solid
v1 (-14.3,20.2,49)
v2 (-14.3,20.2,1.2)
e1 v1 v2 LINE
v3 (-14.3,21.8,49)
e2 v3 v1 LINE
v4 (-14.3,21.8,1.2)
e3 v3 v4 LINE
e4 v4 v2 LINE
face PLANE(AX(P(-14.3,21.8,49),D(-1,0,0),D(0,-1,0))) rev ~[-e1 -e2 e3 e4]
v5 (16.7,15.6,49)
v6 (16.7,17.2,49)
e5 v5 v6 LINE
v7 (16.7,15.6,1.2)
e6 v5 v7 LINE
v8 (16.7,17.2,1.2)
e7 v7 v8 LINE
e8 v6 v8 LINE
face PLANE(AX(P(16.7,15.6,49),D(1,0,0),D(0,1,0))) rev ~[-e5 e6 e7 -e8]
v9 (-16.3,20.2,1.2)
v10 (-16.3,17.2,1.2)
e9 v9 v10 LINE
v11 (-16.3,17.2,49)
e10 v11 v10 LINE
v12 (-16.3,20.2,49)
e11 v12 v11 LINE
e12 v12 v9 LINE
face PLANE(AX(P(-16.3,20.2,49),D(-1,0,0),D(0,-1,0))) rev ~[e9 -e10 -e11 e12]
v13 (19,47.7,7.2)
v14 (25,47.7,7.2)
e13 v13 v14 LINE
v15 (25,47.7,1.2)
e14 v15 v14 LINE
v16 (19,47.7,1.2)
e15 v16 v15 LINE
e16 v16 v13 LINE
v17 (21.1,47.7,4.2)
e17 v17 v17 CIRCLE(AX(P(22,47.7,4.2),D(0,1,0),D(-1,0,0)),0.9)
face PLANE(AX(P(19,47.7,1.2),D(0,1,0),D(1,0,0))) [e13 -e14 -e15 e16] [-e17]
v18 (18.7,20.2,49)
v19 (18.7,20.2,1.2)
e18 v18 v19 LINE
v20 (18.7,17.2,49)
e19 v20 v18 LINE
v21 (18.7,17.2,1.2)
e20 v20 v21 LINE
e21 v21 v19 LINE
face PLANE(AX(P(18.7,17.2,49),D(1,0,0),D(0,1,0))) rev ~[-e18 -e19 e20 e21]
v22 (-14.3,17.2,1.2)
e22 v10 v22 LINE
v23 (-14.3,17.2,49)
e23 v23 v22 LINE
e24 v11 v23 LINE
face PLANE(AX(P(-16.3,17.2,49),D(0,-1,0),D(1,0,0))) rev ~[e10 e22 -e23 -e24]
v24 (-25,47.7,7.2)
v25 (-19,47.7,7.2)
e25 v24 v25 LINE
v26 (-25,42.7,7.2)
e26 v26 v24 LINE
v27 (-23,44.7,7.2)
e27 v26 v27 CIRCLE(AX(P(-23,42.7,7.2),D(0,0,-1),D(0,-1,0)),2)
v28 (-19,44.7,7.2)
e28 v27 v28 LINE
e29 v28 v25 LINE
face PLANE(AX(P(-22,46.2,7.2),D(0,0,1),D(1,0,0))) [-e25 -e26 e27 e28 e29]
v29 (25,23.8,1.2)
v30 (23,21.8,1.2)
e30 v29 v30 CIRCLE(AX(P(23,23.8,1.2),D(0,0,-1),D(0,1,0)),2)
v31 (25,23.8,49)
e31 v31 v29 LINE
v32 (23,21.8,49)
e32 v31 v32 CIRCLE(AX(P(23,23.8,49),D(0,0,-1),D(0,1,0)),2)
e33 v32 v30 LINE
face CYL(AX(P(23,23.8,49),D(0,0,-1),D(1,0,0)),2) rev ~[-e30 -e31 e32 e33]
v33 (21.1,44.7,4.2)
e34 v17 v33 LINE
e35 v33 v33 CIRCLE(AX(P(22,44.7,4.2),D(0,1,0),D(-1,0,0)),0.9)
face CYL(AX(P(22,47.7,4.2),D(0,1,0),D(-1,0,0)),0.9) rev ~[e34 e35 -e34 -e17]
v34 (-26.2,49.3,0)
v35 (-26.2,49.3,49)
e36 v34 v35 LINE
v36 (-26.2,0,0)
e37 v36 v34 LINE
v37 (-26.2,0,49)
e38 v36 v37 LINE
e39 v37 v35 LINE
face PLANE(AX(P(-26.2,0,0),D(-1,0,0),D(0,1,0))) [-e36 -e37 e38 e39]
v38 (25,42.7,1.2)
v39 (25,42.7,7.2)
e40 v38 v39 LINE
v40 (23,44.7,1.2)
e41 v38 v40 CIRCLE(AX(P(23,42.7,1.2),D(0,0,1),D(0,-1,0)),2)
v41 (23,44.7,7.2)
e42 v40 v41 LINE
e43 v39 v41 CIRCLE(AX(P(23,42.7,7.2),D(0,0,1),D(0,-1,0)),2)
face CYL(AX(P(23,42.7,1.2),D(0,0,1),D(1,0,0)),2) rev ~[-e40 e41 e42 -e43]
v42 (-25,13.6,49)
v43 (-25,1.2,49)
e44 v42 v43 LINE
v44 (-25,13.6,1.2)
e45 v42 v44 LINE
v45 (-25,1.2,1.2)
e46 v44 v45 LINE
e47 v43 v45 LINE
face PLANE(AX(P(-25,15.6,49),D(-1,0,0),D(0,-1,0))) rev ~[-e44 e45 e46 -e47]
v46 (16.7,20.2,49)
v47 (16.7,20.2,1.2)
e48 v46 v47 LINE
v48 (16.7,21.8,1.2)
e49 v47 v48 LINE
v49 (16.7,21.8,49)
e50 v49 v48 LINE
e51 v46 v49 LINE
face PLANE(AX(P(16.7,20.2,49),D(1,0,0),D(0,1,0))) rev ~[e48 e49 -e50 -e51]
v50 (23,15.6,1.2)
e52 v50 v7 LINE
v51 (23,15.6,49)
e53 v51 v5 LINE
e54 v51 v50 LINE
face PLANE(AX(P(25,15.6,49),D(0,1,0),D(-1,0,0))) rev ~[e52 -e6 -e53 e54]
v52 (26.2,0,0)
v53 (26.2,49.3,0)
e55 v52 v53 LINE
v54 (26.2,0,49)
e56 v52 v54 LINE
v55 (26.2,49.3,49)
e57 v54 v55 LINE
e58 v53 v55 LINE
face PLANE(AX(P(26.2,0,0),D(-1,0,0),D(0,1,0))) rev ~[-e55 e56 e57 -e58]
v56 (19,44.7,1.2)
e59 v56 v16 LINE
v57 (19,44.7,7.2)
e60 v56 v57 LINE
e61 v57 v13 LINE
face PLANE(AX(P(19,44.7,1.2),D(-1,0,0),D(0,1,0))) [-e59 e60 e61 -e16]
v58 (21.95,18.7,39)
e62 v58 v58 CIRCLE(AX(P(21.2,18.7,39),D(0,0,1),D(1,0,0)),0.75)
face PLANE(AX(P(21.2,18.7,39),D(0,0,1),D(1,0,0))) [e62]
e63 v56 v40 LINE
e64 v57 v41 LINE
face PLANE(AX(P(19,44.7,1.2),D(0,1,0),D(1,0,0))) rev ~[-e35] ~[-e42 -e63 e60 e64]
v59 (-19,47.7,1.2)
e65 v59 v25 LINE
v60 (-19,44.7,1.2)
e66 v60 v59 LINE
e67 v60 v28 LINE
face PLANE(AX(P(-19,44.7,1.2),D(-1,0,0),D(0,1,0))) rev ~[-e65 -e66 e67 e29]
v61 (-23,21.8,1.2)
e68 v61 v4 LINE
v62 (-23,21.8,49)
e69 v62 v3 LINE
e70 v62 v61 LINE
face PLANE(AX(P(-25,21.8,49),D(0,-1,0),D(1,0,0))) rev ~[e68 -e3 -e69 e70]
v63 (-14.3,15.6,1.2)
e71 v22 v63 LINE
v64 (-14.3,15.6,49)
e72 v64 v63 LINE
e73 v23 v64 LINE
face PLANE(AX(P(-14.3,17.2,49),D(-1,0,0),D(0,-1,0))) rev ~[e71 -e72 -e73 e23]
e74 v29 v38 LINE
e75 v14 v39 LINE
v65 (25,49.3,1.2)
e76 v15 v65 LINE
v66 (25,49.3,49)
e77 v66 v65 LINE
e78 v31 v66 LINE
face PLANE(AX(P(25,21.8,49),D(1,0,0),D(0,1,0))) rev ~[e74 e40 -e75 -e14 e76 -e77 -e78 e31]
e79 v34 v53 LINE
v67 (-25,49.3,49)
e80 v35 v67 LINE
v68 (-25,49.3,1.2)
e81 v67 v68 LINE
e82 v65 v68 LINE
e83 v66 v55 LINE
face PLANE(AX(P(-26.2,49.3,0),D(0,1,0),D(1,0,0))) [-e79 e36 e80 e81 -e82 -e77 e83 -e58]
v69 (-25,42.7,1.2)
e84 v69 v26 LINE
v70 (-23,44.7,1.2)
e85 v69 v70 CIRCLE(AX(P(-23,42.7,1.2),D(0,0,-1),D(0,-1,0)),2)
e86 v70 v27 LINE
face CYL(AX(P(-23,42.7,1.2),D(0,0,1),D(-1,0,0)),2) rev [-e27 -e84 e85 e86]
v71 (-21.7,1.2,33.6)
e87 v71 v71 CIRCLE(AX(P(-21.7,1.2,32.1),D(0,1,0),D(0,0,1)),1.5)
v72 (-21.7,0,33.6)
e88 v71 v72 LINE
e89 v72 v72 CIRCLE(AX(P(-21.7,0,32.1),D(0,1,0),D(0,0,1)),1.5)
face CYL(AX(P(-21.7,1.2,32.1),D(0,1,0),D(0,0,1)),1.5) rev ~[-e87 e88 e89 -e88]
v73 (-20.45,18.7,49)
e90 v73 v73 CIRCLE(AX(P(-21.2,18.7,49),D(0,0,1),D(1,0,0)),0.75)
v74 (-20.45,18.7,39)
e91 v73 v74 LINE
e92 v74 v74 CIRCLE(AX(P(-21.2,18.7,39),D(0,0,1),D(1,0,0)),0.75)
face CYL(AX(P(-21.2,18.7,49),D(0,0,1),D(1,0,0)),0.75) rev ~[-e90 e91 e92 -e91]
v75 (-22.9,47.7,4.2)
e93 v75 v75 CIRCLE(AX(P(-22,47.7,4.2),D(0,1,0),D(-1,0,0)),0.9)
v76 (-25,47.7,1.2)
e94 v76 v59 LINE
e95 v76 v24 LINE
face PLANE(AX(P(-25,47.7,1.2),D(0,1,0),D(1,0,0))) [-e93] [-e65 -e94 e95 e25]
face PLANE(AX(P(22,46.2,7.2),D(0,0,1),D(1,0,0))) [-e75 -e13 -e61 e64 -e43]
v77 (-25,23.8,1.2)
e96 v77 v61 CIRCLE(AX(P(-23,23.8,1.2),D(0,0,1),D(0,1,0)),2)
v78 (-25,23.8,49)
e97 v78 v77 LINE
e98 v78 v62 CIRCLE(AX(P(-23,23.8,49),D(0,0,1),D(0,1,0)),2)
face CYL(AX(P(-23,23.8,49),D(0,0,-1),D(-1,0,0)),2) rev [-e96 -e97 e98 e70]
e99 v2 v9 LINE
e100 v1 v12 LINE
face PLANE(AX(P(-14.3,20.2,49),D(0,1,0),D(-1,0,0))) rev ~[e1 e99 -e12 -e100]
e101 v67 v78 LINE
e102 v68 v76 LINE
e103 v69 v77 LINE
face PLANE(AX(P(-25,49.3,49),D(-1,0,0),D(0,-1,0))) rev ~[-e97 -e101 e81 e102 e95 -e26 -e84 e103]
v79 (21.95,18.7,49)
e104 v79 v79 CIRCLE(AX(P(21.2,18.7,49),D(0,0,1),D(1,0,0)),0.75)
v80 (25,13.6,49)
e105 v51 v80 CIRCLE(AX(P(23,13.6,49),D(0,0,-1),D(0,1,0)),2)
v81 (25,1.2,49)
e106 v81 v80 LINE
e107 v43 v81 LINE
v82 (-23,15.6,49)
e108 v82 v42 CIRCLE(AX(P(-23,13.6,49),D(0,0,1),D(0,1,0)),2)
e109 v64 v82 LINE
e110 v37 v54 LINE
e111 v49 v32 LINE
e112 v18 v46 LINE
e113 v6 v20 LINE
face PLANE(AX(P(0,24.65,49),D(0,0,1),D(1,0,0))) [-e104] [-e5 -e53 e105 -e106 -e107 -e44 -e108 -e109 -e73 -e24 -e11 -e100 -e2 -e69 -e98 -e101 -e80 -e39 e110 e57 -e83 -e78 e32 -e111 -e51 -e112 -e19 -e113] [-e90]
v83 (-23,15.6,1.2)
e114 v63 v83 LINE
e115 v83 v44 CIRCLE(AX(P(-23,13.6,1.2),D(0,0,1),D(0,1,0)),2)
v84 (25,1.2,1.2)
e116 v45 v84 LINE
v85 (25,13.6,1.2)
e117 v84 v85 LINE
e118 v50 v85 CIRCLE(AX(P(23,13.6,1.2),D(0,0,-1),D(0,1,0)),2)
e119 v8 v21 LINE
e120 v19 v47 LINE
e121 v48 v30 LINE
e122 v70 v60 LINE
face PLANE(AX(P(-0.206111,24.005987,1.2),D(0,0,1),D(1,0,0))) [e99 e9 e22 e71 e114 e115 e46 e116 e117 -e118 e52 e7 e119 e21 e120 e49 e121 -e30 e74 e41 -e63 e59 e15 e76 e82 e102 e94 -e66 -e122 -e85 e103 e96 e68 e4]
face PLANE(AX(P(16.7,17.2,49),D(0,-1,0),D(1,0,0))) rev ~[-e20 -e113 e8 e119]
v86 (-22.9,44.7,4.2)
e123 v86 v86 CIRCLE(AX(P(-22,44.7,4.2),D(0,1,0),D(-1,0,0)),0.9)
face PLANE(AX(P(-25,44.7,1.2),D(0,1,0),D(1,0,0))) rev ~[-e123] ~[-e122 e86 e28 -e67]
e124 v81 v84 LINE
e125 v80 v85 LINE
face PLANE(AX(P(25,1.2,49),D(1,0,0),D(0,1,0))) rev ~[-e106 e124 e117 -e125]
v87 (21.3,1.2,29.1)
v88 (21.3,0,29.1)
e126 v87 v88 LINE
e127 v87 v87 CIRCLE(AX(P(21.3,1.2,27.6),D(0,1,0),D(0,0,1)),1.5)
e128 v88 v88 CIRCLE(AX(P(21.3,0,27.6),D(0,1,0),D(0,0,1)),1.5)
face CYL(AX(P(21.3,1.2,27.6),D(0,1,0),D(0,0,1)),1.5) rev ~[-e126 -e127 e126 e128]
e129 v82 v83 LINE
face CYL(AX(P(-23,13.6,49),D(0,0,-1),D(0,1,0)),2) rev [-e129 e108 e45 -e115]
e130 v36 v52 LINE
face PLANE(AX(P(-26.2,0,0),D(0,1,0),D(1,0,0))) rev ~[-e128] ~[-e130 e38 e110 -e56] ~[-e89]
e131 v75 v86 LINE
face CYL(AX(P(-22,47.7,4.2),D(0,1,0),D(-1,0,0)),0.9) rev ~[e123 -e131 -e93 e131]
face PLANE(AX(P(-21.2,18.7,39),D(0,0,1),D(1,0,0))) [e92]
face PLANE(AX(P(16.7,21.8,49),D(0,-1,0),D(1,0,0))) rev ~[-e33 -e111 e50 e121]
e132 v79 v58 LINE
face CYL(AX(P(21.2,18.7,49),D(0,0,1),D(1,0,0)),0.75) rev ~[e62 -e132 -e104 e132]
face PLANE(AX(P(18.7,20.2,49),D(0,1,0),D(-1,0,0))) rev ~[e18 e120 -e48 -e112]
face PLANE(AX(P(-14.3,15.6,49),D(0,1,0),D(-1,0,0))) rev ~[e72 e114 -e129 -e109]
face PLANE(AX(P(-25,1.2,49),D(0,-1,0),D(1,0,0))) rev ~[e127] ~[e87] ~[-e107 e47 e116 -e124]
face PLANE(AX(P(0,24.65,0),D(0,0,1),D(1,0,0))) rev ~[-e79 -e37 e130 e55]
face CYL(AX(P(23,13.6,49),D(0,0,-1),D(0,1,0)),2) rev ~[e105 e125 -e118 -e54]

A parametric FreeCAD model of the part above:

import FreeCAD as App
import Part
import Sketcher
Q = App.Units.Quantity


def edges_at(feature, points):
    """Names of the edges that pass closest to the given points."""
    edges = feature.Shape.Edges
    near = lambda p: min(range(len(edges)), key=lambda i: edges[i].distToShape(Part.Vertex(*p))[0])
    return sorted({f"Edge{near(p) + 1}" for p in points})


def add_polygon(sketch, points):
    """Adds a closed chain of lines whose ends are joined by coincident constraints."""
    first, n = sketch.GeometryCount, len(points)
    for a, b in zip(points, points[1:] + points[:1]):
        sketch.addGeometry(Part.LineSegment(App.Vector(*a, 0), App.Vector(*b, 0)), False)
    for i in range(n):
        sketch.addConstraint(Sketcher.Constraint("Coincident", first + i, 2, first + (i + 1) % n, 1))

doc = App.newDocument("Part")
body = doc.addObject("PartDesign::Body", "Body")

# Sketch on XY plane
sketch1 = body.newObject("Sketcher::SketchObject", "Sketch")
sketch1.AttachmentSupport = (doc.getObject("XY_Plane"), [""])
sketch1.MapMode = "FlatFace"
add_polygon(sketch1, [(-26, 49), (-26, 0), (26, 0), (26, 49)])  # lines 0-3
sketch1.addConstraint([
    Sketcher.Constraint("Vertical", 0),
    Sketcher.Constraint("Horizontal", 1),
    Sketcher.Constraint("Vertical", 2),
    Sketcher.Constraint("Horizontal", 3),
    Sketcher.Constraint("Symmetric", 0, 2, 1, 2, -1, 1),
    Sketcher.Constraint("DistanceX", 1, 1, 1, 2, Q("52.4 mm")),
    Sketcher.Constraint("DistanceY", 0, 2, 0, 1, Q("49.3 mm")),
])
pad1 = body.newObject("PartDesign::Pad", "Pad")
pad1.Profile = sketch1
pad1.Length = 49

# Sketch on XY plane
sketch2 = body.newObject("Sketcher::SketchObject", "Sketch001")
sketch2.AttachmentSupport = (doc.getObject("XY_Plane"), [""])
sketch2.MapMode = "FlatFace"
sketch2.AttachmentOffset = App.Placement(App.Vector(0, 0, 49), App.Rotation())
add_polygon(sketch2, [(25, 1.2), (25, 15.6), (16.7, 15.6), (16.7, 17.2), (18.7, 17.2), (18.7, 20.2), (16.7, 20.2), (16.7, 21.8), (25, 21.8), (25, 49.3), (-25, 49.3), (-25, 21.8), (-14.3, 21.8), (-14.3, 20.2), (-16.3, 20.2), (-16.3, 17.2), (-14.3, 17.2), (-14.3, 15.6), (-25, 15.6), (-25, 1.2)])  # lines 0-19
sketch2.addConstraint([
    Sketcher.Constraint("Vertical", 0),
    Sketcher.Constraint("Horizontal", 1),
    Sketcher.Constraint("Vertical", 2),
    Sketcher.Constraint("Horizontal", 3),
    Sketcher.Constraint("Vertical", 4),
    Sketcher.Constraint("Horizontal", 5),
    Sketcher.Constraint("Vertical", 6),
    Sketcher.Constraint("Horizontal", 7),
    Sketcher.Constraint("Vertical", 8),
    Sketcher.Constraint("Horizontal", 9),
    Sketcher.Constraint("Vertical", 10),
    Sketcher.Constraint("Horizontal", 11),
    Sketcher.Constraint("Vertical", 12),
    Sketcher.Constraint("Horizontal", 13),
    Sketcher.Constraint("Vertical", 14),
    Sketcher.Constraint("Horizontal", 15),
    Sketcher.Constraint("Vertical", 16),
    Sketcher.Constraint("Horizontal", 17),
    Sketcher.Constraint("Vertical", 18),
    Sketcher.Constraint("Horizontal", 19),
    Sketcher.Constraint("Symmetric", 7, 2, 10, 2, -2),
    Sketcher.Constraint("Symmetric", 0, 2, 17, 2, -2),
    Sketcher.Constraint("Horizontal", 5, 2, 12, 2),
    Sketcher.Constraint("Horizontal", 3, 2, 14, 2),
    Sketcher.Constraint("Vertical", 2, 2, 5, 2),
    Sketcher.Constraint("Vertical", 0, 2, 7, 2),
    Sketcher.Constraint("Vertical", 12, 2, 15, 2),
    Sketcher.Constraint("Equal", 5, 13),
    Sketcher.Constraint("Equal", 2, 6),
    Sketcher.Constraint("DistanceX", 3, 1, 3, 2, Q("2 mm")),
    Sketcher.Constraint("DistanceX", 9, 2, 9, 1, Q("50 mm")),
    Sketcher.Constraint("DistanceY", 4, 1, 4, 2, Q("3 mm")),
    Sketcher.Constraint("DistanceX", 1, 2, 1, 1, Q("8.3 mm")),
    Sketcher.Constraint("DistanceX", 11, 1, 11, 2, Q("10.7 mm")),
    Sketcher.Constraint("DistanceY", 0, 1, 0, 2, Q("14.4 mm")),
    Sketcher.Constraint("DistanceY", 2, 1, 2, 2, Q("1.6 mm")),
    Sketcher.Constraint("DistanceY", 8, 1, 8, 2, Q("27.5 mm")),
    Sketcher.Constraint("DistanceY", -1, 1, 0, 2, Q("15.6 mm")),
])
pocket1 = body.newObject("PartDesign::Pocket", "Pocket")
pocket1.Profile = sketch2
pocket1.Length = 47.8

# Sketch on XY plane
sketch3 = body.newObject("Sketcher::SketchObject", "Sketch002")
sketch3.AttachmentSupport = (doc.getObject("XY_Plane"), [""])
sketch3.MapMode = "FlatFace"
sketch3.AttachmentOffset = App.Placement(App.Vector(0, 0, 1.2), App.Rotation())
add_polygon(sketch3, [(-25, 47.7), (-25, 44.7), (-19, 44.7), (-19, 47.7)])  # lines 0-3
add_polygon(sketch3, [(19, 47.7), (19, 44.7), (25, 44.7), (25, 47.7)])  # lines 4-7
sketch3.addConstraint([
    Sketcher.Constraint("Vertical", 0),
    Sketcher.Constraint("Horizontal", 1),
    Sketcher.Constraint("Vertical", 2),
    Sketcher.Constraint("Horizontal", 3),
    Sketcher.Constraint("Vertical", 4),
    Sketcher.Constraint("Horizontal", 5),
    Sketcher.Constraint("Vertical", 6),
    Sketcher.Constraint("Horizontal", 7),
    Sketcher.Constraint("Symmetric", 1, 2, 4, 2, -2),
    Sketcher.Constraint("Symmetric", 3, 2, 6, 2, -2),
    Sketcher.Constraint("DistanceX", 1, 1, 1, 2, Q("6 mm")),
    Sketcher.Constraint("DistanceY", 0, 2, 0, 1, Q("3 mm")),
    Sketcher.Constraint("DistanceX", 0, 2, -1, 1, Q("25 mm")),
    Sketcher.Constraint("DistanceY", -1, 1, 0, 2, Q("44.7 mm")),
])
pad2 = body.newObject("PartDesign::Pad", "Pad001")
pad2.Profile = sketch3
pad2.Length = 6

# Sketch on XY plane
sketch4 = body.newObject("Sketcher::SketchObject", "Sketch003")
sketch4.AttachmentSupport = (doc.getObject("XY_Plane"), [""])
sketch4.MapMode = "FlatFace"
sketch4.AttachmentOffset = App.Placement(App.Vector(0, 0, 49), App.Rotation())
sketch4.addGeometry([
    Part.Circle(App.Vector(-21.2, 18.7, 0), App.Vector(0, 0, 1), 0.8),
    Part.Circle(App.Vector(21.2, 18.7, 0), App.Vector(0, 0, 1), 0.8),
], False)
sketch4.addConstraint([
    Sketcher.Constraint("Equal", 0, 1),
    Sketcher.Constraint("Symmetric", 0, 3, 1, 3, -2),
    Sketcher.Constraint("Diameter", 0, Q("1.5 mm")),
    Sketcher.Constraint("DistanceX", 0, 3, -1, 1, Q("21.2 mm")),
    Sketcher.Constraint("DistanceY", -1, 1, 0, 3, Q("18.7 mm")),
])
pocket2 = body.newObject("PartDesign::Pocket", "Pocket001")
pocket2.Profile = sketch4
pocket2.Length = 10

# Sketch on XZ plane
sketch5 = body.newObject("Sketcher::SketchObject", "Sketch004")
sketch5.AttachmentSupport = (doc.getObject("XZ_Plane"), [""])
sketch5.MapMode = "FlatFace"
sketch5.AttachmentOffset = App.Placement(App.Vector(0, 0, -1.2), App.Rotation())
sketch5.addGeometry([
    Part.Circle(App.Vector(-21.7, 32.1, 0), App.Vector(0, 0, 1), 1.5),
    Part.Circle(App.Vector(21.3, 27.6, 0), App.Vector(0, 0, 1), 1.5),
], False)
sketch5.addConstraint([
    Sketcher.Constraint("Equal", 0, 1),
    Sketcher.Constraint("Diameter", 0, Q("3 mm")),
    Sketcher.Constraint("DistanceX", 0, 3, 1, 3, Q("43 mm")),
    Sketcher.Constraint("DistanceX", 0, 3, -1, 1, Q("21.7 mm")),
    Sketcher.Constraint("DistanceY", -1, 1, 0, 3, Q("32.1 mm")),
    Sketcher.Constraint("DistanceY", -1, 1, 1, 3, Q("27.6 mm")),
])
pocket3 = body.newObject("PartDesign::Pocket", "Pocket002")
pocket3.Profile = sketch5
pocket3.Type = "ThroughAll"
pocket3.Reversed = True

# Sketch on XZ plane
sketch6 = body.newObject("Sketcher::SketchObject", "Sketch005")
sketch6.AttachmentSupport = (doc.getObject("XZ_Plane"), [""])
sketch6.MapMode = "FlatFace"
sketch6.AttachmentOffset = App.Placement(App.Vector(0, 0, -47.7), App.Rotation())
sketch6.addGeometry([
    Part.Circle(App.Vector(22, 4.2, 0), App.Vector(0, 0, 1), 0.9),
    Part.Circle(App.Vector(-22, 4.2, 0), App.Vector(0, 0, 1), 0.9),
], False)
sketch6.addConstraint([
    Sketcher.Constraint("Equal", 0, 1),
    Sketcher.Constraint("Symmetric", 0, 3, 1, 3, -2),
    Sketcher.Constraint("Diameter", 0, Q("1.8 mm")),
    Sketcher.Constraint("DistanceX", -1, 1, 0, 3, Q("22 mm")),
    Sketcher.Constraint("DistanceY", -1, 1, 0, 3, Q("4.2 mm")),
])
pocket4 = body.newObject("PartDesign::Pocket", "Pocket003")
pocket4.Profile = sketch6
pocket4.Length = 5
pocket4.Reversed = True
doc.recompute()

fillet = body.newObject("PartDesign::Fillet", "Fillet")
fillet.Base = (pocket4, edges_at(pocket4, [
    (-25, 15.6, 25.1),
    (-25, 21.8, 25.1),
    (25, 21.8, 25.1),
    (25, 15.6, 25.1),
    (-25, 44.7, 4.2),
    (25, 44.7, 4.2),
]))
fillet.Radius = 2

doc.recompute()
